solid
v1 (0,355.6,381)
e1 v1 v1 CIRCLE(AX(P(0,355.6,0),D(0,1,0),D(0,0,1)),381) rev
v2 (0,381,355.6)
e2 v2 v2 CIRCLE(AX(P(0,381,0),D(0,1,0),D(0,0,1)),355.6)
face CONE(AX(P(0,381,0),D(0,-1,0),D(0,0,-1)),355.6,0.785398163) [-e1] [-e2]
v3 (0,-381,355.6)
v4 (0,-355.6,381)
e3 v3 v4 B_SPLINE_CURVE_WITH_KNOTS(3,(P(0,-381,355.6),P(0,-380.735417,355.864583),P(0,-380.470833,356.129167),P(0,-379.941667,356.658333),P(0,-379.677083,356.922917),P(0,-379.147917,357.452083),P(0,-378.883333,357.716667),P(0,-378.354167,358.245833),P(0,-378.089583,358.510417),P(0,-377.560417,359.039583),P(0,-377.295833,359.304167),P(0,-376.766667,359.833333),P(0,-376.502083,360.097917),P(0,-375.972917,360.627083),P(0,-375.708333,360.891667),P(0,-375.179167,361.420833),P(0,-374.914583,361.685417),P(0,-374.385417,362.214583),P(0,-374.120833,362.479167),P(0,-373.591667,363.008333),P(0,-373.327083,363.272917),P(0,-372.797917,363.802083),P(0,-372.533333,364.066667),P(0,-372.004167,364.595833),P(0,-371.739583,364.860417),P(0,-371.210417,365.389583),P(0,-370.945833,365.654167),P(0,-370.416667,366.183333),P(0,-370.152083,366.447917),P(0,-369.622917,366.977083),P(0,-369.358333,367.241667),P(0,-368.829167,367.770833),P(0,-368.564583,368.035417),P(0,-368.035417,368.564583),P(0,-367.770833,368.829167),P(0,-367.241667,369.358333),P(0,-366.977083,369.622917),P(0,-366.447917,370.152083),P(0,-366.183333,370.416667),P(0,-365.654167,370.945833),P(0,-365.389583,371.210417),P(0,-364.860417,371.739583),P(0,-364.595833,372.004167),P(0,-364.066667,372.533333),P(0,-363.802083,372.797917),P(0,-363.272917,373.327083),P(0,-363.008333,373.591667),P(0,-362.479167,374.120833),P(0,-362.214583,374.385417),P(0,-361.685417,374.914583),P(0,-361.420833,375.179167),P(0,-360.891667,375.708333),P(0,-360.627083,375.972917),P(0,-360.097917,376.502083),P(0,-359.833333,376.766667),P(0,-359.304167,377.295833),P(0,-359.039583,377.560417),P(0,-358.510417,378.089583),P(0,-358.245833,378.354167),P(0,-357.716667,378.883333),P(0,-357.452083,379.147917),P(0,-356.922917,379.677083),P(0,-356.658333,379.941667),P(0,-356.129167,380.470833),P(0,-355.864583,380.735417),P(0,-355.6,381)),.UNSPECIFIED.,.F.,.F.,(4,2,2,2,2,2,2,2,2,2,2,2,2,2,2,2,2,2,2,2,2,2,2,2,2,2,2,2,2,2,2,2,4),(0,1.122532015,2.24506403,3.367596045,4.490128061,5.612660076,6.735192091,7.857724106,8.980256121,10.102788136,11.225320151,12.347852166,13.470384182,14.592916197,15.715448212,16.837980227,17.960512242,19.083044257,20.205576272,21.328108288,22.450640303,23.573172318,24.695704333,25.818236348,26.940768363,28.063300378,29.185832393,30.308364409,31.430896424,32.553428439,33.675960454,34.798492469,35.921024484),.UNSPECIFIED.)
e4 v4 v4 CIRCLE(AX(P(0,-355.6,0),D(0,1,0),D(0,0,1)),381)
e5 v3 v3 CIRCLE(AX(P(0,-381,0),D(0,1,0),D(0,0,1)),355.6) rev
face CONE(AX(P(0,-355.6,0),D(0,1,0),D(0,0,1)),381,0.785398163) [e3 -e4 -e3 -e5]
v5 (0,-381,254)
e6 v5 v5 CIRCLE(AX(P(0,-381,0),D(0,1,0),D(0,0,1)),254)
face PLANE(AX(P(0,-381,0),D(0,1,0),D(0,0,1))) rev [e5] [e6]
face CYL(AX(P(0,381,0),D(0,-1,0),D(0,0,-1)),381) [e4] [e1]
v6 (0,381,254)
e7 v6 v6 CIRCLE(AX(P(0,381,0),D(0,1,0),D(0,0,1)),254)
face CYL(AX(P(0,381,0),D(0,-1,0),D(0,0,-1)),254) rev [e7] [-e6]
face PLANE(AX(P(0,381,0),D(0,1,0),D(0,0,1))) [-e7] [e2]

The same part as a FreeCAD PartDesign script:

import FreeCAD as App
import Part
import Sketcher
Q = App.Units.Quantity


def edges_at(feature, points):
    """Names of the edges that pass closest to the given points."""
    edges = feature.Shape.Edges
    near = lambda p: min(range(len(edges)), key=lambda i: edges[i].distToShape(Part.Vertex(*p))[0])
    return sorted({f"Edge{near(p) + 1}" for p in points})

doc = App.newDocument("Part")
body = doc.addObject("PartDesign::Body", "Body")

# Sketch on XZ plane
sketch1 = doc.addObject("Sketcher::SketchObject", "Sketch")
body.addObject(sketch1)
sketch1.AttachmentSupport = (doc.XZ_Plane, [""])
sketch1.MapMode = "FlatFace"
sketch1.addGeometry([
    Part.Circle(App.Vector(0, 0, 0), App.Vector(0, 0, 1), 381),
    Part.Circle(App.Vector(0, 0, 0), App.Vector(0, 0, 1), 254),
], False)
sketch1.addConstraint([
    Sketcher.Constraint("Coincident", 0, 3, -1, 1),
    Sketcher.Constraint("Coincident", 1, 3, -1, 1),
    Sketcher.Constraint("Diameter", 0, Q("30 in")),
    Sketcher.Constraint("Diameter", 1, Q("20 in")),
])
pad1 = doc.addObject("PartDesign::Pad", "Pad")
body.addObject(pad1)
pad1.Profile = sketch1
pad1.Length = Q("30 in")
pad1.Midplane = True
doc.recompute()

chamfer = doc.addObject("PartDesign::Chamfer", "Chamfer")
body.addObject(chamfer)
chamfer.Base = (pad1, edges_at(pad1, [(0, -381, -381), (0, 381, -381)]))
chamfer.Size = Q("1 in")

doc.recompute()
